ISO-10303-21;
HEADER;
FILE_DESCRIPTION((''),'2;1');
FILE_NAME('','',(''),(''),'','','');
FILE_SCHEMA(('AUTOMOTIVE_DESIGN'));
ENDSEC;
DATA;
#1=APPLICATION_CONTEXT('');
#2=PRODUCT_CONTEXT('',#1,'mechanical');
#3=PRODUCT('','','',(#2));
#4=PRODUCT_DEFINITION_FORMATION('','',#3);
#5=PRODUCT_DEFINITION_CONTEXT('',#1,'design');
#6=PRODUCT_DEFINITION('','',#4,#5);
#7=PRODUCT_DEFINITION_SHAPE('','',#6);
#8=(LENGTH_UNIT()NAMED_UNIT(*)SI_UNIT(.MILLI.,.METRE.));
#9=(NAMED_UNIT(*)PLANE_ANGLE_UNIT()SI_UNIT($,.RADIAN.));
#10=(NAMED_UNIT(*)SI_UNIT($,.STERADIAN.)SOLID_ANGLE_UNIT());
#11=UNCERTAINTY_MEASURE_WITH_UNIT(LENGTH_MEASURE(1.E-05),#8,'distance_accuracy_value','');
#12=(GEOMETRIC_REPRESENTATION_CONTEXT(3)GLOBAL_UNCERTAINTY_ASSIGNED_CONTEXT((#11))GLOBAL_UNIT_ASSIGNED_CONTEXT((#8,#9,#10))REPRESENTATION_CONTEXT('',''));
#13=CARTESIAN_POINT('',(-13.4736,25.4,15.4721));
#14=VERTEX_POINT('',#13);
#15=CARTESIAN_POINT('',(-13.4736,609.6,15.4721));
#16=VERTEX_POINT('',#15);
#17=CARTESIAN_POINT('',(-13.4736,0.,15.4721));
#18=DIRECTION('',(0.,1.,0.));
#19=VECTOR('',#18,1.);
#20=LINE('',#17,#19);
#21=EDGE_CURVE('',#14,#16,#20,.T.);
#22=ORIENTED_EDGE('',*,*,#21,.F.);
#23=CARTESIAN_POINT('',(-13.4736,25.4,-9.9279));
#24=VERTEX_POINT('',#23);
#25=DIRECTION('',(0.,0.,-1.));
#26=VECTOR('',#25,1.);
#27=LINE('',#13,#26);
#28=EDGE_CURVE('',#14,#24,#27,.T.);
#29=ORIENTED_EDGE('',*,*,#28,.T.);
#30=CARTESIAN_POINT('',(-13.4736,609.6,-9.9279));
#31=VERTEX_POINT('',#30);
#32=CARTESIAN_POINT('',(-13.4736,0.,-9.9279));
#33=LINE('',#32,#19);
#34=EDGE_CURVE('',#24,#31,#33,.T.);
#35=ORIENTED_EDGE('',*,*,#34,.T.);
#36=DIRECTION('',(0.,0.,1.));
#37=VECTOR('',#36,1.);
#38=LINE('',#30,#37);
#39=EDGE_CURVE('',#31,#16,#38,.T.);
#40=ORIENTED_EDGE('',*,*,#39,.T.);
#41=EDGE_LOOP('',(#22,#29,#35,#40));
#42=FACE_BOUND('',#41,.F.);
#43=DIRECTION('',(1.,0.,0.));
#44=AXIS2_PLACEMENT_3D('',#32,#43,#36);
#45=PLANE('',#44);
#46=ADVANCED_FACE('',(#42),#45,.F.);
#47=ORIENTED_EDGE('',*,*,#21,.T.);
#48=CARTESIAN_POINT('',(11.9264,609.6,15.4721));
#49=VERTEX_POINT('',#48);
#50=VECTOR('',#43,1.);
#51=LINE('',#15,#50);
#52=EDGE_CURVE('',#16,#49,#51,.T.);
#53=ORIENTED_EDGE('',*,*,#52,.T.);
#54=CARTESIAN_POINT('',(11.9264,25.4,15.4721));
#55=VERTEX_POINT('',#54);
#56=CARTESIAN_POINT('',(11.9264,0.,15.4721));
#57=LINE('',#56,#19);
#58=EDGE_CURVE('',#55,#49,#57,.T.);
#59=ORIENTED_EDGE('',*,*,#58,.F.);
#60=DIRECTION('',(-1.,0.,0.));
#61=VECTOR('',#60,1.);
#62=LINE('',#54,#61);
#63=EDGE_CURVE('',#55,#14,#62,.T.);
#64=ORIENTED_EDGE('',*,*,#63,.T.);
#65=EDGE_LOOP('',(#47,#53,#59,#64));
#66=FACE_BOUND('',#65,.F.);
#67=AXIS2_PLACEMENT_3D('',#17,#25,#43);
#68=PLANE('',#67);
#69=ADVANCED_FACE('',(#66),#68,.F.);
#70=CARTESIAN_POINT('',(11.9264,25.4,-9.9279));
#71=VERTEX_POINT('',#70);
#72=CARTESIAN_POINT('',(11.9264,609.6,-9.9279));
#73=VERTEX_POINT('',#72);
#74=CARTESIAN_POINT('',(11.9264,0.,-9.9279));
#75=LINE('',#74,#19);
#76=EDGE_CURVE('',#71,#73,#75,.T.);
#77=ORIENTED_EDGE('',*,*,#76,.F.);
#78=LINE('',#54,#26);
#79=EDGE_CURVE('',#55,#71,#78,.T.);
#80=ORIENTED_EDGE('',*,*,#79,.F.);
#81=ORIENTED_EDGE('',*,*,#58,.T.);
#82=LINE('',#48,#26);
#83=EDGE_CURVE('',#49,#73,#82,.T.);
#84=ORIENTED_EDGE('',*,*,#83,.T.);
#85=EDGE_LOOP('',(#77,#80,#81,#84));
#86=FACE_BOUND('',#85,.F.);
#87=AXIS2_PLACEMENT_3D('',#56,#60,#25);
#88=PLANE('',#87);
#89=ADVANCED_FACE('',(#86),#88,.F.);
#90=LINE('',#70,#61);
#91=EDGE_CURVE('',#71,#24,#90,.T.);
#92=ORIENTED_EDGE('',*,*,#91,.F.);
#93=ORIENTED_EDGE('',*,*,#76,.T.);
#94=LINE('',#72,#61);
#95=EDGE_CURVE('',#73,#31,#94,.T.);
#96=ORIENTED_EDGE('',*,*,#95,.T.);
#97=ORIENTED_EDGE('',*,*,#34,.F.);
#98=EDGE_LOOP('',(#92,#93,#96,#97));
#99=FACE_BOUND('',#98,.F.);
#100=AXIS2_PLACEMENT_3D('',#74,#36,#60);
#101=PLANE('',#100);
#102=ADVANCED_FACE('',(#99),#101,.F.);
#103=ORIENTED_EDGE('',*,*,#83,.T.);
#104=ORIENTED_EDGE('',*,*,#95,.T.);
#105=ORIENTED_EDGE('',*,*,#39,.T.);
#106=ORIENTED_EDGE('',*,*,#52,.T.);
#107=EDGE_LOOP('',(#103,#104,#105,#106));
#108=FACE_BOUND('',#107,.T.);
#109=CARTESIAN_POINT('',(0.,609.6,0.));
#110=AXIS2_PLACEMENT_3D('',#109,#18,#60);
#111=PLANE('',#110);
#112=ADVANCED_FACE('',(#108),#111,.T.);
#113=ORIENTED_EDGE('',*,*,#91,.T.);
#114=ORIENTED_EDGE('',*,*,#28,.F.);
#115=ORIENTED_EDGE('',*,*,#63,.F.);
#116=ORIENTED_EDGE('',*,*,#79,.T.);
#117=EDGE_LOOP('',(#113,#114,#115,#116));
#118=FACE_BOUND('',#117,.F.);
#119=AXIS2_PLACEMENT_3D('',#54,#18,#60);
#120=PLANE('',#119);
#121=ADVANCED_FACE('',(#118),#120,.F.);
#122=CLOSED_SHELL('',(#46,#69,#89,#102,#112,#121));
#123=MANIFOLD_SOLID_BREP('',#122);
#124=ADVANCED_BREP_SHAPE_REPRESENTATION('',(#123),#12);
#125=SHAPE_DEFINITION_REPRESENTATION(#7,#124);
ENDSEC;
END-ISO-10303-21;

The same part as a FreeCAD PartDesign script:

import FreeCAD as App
import Part
import Sketcher

V = App.Vector
Q = App.Units.Quantity

doc = App.newDocument("Part")
body = doc.addObject("PartDesign::Body", "Body")

sketch1 = body.newObject("Sketcher::SketchObject", "Sketch")
sketch1.AttachmentSupport = (doc.getObject("XZ_Plane"), [""])
sketch1.MapMode = "FlatFace"
sketch1.addGeometry([
    Part.LineSegment(V(-13.4736, -9.9279, 0), V(-13.4736, 15.4721, 0)),
    Part.LineSegment(V(-13.4736, 15.4721, 0), V(11.9264, 15.4721, 0)),
    Part.LineSegment(V(11.9264, 15.4721, 0), V(11.9264, -9.9279, 0)),
    Part.LineSegment(V(11.9264, -9.9279, 0), V(-13.4736, -9.9279, 0)),
], False)
sketch1.addConstraint([
    Sketcher.Constraint("Coincident", 0, 2, 1, 1),
    Sketcher.Constraint("Coincident", 1, 2, 2, 1),
    Sketcher.Constraint("Coincident", 2, 2, 3, 1),
    Sketcher.Constraint("Coincident", 3, 2, 0, 1),
    Sketcher.Constraint("Vertical", 0),
    Sketcher.Constraint("Horizontal", 1),
    Sketcher.Constraint("Vertical", 2),
    Sketcher.Constraint("Horizontal", 3),
    Sketcher.Constraint("Equal", 3, 0),
    Sketcher.Constraint("DistanceX", 1, 1, 1, 2, Q("1 in")),
    Sketcher.Constraint("DistanceX", 0, 2, -1, 1, Q("13.4736 mm")),
    Sketcher.Constraint("DistanceY", -1, 1, 0, 2, Q("15.472 mm")),
])
pad1 = body.newObject("PartDesign::Pad", "Pad")
pad1.Profile = sketch1
pad1.Length = Q("24 in")
pad1.Reversed = True

sketch2 = body.newObject("Sketcher::SketchObject", "Sketch001")
sketch2.AttachmentSupport = (doc.getObject("XY_Plane"), [""])
sketch2.MapMode = "FlatFace"
sketch2.AttachmentOffset = App.Placement(V(0, 0, 15.4721), App.Rotation())
sketch2.addGeometry([
    Part.LineSegment(V(-13.4736, 25.4, 0), V(-13.4736, 0, 0)),
    Part.LineSegment(V(-13.4736, 0, 0), V(11.9264, 0, 0)),
    Part.LineSegment(V(11.9264, 0, 0), V(11.9264, 25.4, 0)),
    Part.LineSegment(V(11.9264, 25.4, 0), V(-13.4736, 25.4, 0)),
], False)
sketch2.addConstraint([
    Sketcher.Constraint("Coincident", 0, 2, 1, 1),
    Sketcher.Constraint("Coincident", 1, 2, 2, 1),
    Sketcher.Constraint("Coincident", 2, 2, 3, 1),
    Sketcher.Constraint("Coincident", 3, 2, 0, 1),
    Sketcher.Constraint("Vertical", 0),
    Sketcher.Constraint("Horizontal", 1),
    Sketcher.Constraint("Vertical", 2),
    Sketcher.Constraint("Horizontal", 3),
    Sketcher.Constraint("PointOnObject", 0, 2, -1),
    Sketcher.Constraint("Equal", 3, 0),
    Sketcher.Constraint("DistanceX", 1, 1, 1, 2, Q("1 in")),
    Sketcher.Constraint("DistanceX", 0, 2, -1, 1, Q("13.4736 mm")),
])
pocket1 = body.newObject("PartDesign::Pocket", "Pocket")
pocket1.Profile = sketch2
pocket1.Length = Q("1 in")

doc.recompute()
